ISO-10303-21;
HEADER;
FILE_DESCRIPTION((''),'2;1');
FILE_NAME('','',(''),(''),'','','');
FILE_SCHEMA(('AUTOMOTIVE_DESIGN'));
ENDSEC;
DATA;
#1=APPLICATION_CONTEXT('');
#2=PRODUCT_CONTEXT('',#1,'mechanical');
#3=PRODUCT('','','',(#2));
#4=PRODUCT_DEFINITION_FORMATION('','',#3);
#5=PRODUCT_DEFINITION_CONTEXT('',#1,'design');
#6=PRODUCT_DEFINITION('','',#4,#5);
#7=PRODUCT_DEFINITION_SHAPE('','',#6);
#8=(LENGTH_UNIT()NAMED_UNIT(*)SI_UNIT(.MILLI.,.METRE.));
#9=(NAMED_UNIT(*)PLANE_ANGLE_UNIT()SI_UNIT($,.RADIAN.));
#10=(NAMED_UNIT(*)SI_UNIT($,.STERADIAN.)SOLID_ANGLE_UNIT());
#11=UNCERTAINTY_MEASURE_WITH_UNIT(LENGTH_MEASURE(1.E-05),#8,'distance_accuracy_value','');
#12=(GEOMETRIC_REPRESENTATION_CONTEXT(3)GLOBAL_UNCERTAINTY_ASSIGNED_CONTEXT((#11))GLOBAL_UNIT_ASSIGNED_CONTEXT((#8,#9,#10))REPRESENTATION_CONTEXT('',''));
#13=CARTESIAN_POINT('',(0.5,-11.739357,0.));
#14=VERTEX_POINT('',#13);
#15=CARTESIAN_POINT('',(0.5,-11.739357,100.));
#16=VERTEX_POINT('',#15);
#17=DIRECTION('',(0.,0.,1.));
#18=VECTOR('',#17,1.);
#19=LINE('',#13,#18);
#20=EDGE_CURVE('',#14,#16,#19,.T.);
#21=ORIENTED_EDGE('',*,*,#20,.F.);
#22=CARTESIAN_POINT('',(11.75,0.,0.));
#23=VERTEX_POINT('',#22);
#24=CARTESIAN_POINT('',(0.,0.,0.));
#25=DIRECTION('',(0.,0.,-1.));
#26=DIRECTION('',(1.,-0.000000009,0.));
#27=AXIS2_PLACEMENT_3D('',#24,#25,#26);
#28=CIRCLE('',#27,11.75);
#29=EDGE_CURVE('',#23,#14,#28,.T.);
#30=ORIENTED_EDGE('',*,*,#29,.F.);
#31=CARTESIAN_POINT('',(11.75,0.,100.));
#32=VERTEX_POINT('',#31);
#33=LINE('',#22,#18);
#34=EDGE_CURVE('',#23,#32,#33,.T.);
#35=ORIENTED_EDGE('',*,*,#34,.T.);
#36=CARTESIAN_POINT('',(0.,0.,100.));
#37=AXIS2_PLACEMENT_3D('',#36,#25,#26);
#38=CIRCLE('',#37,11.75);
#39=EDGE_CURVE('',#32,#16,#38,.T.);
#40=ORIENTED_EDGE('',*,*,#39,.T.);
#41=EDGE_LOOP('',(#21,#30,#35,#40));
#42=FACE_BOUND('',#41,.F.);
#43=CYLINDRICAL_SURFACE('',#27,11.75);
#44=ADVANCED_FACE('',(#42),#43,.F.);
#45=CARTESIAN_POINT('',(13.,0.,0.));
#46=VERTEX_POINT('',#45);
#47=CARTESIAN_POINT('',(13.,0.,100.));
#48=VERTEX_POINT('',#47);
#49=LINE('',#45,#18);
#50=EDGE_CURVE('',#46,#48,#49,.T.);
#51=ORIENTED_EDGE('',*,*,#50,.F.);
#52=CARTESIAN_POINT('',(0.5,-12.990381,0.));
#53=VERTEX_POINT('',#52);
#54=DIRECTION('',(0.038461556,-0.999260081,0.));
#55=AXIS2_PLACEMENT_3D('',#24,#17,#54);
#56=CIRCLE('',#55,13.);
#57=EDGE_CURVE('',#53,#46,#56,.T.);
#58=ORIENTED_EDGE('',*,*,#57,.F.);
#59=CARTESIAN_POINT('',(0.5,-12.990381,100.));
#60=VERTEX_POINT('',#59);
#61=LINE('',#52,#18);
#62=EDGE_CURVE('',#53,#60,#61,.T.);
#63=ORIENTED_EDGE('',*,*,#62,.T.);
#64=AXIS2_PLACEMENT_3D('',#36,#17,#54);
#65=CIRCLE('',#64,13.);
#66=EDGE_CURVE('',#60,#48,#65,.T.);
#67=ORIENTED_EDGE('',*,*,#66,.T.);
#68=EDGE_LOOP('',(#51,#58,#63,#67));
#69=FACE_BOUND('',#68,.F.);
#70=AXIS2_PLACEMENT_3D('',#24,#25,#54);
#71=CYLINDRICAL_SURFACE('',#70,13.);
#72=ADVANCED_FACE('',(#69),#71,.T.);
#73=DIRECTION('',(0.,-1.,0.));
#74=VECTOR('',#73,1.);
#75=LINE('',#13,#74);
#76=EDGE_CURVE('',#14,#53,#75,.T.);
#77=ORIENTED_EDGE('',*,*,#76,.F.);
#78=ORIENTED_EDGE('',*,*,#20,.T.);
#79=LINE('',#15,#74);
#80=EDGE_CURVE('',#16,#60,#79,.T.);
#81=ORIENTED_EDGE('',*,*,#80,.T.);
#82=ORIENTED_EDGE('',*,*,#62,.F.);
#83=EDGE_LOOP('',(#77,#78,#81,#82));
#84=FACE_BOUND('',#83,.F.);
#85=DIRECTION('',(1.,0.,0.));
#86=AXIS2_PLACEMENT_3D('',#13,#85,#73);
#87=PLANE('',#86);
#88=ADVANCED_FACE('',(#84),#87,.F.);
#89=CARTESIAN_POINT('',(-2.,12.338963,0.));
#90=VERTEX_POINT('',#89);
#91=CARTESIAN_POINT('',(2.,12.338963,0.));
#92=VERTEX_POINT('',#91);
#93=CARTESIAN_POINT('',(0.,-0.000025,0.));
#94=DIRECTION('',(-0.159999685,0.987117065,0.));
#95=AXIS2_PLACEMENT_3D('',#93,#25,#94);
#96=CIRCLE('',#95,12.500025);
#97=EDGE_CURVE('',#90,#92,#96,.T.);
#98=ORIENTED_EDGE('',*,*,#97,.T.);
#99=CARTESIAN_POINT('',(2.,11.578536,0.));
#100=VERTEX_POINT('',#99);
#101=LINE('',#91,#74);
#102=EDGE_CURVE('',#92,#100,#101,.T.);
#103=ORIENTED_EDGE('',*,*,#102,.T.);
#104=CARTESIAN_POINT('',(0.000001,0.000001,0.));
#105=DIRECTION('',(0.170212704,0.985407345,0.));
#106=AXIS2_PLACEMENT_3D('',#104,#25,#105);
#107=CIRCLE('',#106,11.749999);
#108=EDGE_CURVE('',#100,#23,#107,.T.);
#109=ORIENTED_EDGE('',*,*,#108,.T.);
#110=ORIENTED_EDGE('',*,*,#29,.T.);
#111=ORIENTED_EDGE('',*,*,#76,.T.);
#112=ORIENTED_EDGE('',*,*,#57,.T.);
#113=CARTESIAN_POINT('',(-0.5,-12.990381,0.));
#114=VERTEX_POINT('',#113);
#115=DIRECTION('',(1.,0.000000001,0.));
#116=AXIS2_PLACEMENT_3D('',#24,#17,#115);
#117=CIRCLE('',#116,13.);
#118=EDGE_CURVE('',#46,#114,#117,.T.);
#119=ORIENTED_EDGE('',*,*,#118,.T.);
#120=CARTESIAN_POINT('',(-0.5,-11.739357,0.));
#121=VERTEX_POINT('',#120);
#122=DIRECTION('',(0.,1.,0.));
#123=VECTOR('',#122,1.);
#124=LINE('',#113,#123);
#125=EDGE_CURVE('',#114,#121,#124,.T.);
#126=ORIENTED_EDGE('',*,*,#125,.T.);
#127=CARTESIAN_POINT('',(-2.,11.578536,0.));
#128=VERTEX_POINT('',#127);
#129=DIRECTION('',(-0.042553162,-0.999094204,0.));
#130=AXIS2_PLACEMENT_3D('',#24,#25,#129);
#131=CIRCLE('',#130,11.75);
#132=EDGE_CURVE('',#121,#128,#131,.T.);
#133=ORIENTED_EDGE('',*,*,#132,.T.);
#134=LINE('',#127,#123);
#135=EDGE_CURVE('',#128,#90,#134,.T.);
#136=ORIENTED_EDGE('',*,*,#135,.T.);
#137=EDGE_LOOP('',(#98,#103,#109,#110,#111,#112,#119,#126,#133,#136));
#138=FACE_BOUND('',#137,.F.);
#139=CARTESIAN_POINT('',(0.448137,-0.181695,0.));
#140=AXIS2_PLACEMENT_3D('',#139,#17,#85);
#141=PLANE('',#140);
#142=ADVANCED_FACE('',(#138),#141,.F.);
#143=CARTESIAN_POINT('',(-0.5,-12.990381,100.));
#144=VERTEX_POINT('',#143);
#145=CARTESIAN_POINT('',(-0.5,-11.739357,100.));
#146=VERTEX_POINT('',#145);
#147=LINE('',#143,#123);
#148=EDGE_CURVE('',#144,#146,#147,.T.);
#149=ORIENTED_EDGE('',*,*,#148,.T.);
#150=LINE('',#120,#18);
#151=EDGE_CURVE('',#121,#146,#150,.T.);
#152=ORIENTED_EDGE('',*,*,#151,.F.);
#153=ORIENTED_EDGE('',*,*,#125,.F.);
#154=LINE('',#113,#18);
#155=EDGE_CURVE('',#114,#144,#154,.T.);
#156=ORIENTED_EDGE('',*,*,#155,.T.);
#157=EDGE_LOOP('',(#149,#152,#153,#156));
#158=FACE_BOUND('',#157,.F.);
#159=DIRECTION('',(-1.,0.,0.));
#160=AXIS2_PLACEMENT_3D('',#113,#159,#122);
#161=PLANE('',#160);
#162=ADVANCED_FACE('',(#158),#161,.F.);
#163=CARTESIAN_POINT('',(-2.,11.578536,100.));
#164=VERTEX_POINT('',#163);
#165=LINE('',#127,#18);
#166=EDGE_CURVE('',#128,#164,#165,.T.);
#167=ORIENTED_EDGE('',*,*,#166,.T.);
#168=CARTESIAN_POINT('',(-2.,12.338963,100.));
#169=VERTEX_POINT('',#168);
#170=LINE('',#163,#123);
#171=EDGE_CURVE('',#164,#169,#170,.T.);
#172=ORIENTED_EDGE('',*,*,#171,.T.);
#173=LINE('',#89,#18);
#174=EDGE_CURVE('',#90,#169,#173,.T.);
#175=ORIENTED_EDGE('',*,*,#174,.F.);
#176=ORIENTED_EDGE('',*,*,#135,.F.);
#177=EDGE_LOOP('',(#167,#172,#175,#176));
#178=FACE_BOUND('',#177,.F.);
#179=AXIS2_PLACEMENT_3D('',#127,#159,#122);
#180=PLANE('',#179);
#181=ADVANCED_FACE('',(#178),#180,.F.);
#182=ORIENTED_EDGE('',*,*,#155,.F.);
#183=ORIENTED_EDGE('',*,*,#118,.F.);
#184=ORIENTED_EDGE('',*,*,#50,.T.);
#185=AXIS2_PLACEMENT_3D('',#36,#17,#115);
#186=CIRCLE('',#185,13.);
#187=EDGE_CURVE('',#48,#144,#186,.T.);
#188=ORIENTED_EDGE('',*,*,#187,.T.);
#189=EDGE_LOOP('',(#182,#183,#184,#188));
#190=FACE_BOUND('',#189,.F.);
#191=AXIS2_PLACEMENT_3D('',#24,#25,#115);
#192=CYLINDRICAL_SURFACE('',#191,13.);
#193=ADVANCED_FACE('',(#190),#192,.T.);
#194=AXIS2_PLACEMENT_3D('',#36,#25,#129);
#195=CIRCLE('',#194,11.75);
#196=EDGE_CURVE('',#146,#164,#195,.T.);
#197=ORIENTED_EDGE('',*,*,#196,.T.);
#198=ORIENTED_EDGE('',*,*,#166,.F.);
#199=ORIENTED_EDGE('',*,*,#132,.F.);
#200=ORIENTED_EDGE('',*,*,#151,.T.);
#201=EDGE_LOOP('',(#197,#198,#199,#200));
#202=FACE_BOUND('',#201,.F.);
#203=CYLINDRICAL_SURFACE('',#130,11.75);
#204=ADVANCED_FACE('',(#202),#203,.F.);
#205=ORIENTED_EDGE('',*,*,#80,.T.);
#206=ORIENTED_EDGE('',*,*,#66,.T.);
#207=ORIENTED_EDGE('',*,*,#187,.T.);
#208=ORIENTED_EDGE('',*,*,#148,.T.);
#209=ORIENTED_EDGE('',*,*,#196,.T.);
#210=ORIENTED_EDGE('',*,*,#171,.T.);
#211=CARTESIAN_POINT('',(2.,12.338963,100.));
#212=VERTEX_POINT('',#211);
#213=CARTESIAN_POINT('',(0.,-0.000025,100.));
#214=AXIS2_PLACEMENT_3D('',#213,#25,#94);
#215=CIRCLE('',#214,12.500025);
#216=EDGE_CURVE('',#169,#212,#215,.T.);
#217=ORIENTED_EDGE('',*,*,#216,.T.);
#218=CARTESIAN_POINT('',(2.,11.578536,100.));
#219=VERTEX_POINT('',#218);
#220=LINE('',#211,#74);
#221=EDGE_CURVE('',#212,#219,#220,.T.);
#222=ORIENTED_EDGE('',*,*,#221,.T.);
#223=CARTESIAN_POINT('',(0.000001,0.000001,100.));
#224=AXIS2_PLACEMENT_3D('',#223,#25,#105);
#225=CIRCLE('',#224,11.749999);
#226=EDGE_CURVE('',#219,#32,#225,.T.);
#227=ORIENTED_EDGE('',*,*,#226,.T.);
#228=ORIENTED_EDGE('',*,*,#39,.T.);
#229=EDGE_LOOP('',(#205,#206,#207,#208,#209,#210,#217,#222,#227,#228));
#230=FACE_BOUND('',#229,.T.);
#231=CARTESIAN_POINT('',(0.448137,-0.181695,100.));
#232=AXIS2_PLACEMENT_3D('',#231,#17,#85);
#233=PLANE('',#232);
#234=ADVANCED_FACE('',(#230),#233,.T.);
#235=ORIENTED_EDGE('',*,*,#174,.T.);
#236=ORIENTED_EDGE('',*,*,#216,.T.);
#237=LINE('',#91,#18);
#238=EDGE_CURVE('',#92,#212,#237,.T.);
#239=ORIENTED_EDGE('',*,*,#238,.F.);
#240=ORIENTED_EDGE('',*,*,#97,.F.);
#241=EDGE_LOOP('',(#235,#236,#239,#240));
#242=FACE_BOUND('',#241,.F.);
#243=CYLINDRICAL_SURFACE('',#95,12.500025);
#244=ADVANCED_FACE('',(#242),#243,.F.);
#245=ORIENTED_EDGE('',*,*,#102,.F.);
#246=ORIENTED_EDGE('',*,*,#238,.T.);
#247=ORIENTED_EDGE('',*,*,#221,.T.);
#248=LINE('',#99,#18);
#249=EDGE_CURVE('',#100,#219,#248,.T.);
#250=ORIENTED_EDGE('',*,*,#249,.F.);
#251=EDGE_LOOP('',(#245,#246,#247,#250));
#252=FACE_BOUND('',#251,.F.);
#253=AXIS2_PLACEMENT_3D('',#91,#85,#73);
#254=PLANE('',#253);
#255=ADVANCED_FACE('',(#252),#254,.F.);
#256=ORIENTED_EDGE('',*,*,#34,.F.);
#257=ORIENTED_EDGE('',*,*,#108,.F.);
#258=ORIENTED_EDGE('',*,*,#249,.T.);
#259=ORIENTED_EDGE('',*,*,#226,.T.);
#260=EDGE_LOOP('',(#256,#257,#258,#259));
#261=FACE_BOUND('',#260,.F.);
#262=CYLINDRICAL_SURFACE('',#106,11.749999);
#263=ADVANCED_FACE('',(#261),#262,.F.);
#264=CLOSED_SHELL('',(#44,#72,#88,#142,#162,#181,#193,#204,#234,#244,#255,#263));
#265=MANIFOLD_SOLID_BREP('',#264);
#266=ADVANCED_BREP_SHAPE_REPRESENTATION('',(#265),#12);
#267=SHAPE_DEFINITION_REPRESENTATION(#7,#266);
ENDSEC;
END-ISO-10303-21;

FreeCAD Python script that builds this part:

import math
import FreeCAD as App
import Part
import Sketcher

V = App.Vector
Q = App.Units.Quantity

doc = App.newDocument("Part")
body = doc.addObject("PartDesign::Body", "Body")

# Sketch on XY plane
sketch1 = body.newObject("Sketcher::SketchObject", "Sketch")
sketch1.AttachmentSupport = (doc.getObject("XY_Plane"), [""])
sketch1.MapMode = "FlatFace"
sketch1.addGeometry([
    Part.ArcOfCircle(Part.Circle(V(0, 0, 0), V(0, 0, 1), 11.7), math.radians(0), math.radians(80)),  # 0
    Part.ArcOfCircle(Part.Circle(V(0, 0, 0), V(0, 0, 1), 11.8), math.radians(-88), math.radians(0)),  # 1
    Part.LineSegment(V(0.5, -11.7, 0), V(0.5, -13, 0)),  # 2
    Part.ArcOfCircle(Part.Circle(V(0, 0, 0), V(0, 0, 1), 13), math.radians(-88), math.radians(0)),  # 3
    Part.ArcOfCircle(Part.Circle(V(0, 0, 0), V(0, 0, 1), 13), math.radians(0), math.radians(268)),  # 4
    Part.LineSegment(V(-0.5, -13, 0), V(-0.5, -11.7, 0)),  # 5
    Part.ArcOfCircle(Part.Circle(V(0, 0, 0), V(0, 0, 1), 11.7), math.radians(100), math.radians(268)),  # 6
    Part.LineSegment(V(-2, 11.6, 0), V(-2, 12.3, 0)),  # 7
    Part.ArcOfCircle(Part.Circle(V(0, 0, 0), V(0, 0, 1), 12.5), math.radians(80.79), math.radians(99.21)),  # 8
    Part.LineSegment(V(2, 12.3, 0), V(2, 11.6, 0)),  # 9
], False)
sketch1.addConstraint([
    Sketcher.Constraint("Tangent", 0, 1, 1, 2),
    Sketcher.Constraint("Coincident", 1, 1, 2, 1),
    Sketcher.Constraint("Coincident", 2, 2, 3, 1),
    Sketcher.Constraint("Tangent", 3, 2, 4, 1),
    Sketcher.Constraint("Coincident", 4, 2, 5, 1),
    Sketcher.Constraint("Coincident", 5, 2, 6, 2),
    Sketcher.Constraint("Coincident", 6, 1, 7, 1),
    Sketcher.Constraint("Coincident", 7, 2, 8, 2),
    Sketcher.Constraint("Coincident", 8, 1, 9, 1),
    Sketcher.Constraint("Coincident", 9, 2, 0, 2),
    Sketcher.Constraint("Vertical", 2),
    Sketcher.Constraint("Vertical", 5),
    Sketcher.Constraint("Vertical", 7),
    Sketcher.Constraint("Vertical", 9),
    Sketcher.Constraint("Coincident", 0, 3, -1, 1),
    Sketcher.Constraint("Coincident", 3, 3, -1, 1),
    Sketcher.Constraint("Coincident", 6, 3, -1, 1),
    Sketcher.Constraint("Equal", 0, 1),
    Sketcher.Constraint("Equal", 3, 4),
    Sketcher.Constraint("Equal", 1, 6),
    Sketcher.Constraint("Symmetric", 7, 2, 8, 1, -2),
    Sketcher.Constraint("PointOnObject", 0, 1, -1),
    Sketcher.Constraint("PointOnObject", 3, 2, -1),
    Sketcher.Constraint("Horizontal", 2, 2, 4, 2),
    Sketcher.Constraint("Radius", 3, Q("13 mm")),
    Sketcher.Constraint("Radius", 0, Q("11.749999 mm")),
    Sketcher.Constraint("DistanceX", 6, 1, -1, 1, Q("2 mm")),
    Sketcher.Constraint("DistanceX", 4, 2, 2, 2, Q("1 mm")),
    Sketcher.Constraint("Radius", 8, Q("12.500025 mm")),
    Sketcher.Constraint("DistanceY", 7, 1, 7, 2, Q("0.760427 mm")),
])
pad1 = body.newObject("PartDesign::Pad", "Pad")
pad1.Profile = sketch1
pad1.Length = 100

doc.recompute()
